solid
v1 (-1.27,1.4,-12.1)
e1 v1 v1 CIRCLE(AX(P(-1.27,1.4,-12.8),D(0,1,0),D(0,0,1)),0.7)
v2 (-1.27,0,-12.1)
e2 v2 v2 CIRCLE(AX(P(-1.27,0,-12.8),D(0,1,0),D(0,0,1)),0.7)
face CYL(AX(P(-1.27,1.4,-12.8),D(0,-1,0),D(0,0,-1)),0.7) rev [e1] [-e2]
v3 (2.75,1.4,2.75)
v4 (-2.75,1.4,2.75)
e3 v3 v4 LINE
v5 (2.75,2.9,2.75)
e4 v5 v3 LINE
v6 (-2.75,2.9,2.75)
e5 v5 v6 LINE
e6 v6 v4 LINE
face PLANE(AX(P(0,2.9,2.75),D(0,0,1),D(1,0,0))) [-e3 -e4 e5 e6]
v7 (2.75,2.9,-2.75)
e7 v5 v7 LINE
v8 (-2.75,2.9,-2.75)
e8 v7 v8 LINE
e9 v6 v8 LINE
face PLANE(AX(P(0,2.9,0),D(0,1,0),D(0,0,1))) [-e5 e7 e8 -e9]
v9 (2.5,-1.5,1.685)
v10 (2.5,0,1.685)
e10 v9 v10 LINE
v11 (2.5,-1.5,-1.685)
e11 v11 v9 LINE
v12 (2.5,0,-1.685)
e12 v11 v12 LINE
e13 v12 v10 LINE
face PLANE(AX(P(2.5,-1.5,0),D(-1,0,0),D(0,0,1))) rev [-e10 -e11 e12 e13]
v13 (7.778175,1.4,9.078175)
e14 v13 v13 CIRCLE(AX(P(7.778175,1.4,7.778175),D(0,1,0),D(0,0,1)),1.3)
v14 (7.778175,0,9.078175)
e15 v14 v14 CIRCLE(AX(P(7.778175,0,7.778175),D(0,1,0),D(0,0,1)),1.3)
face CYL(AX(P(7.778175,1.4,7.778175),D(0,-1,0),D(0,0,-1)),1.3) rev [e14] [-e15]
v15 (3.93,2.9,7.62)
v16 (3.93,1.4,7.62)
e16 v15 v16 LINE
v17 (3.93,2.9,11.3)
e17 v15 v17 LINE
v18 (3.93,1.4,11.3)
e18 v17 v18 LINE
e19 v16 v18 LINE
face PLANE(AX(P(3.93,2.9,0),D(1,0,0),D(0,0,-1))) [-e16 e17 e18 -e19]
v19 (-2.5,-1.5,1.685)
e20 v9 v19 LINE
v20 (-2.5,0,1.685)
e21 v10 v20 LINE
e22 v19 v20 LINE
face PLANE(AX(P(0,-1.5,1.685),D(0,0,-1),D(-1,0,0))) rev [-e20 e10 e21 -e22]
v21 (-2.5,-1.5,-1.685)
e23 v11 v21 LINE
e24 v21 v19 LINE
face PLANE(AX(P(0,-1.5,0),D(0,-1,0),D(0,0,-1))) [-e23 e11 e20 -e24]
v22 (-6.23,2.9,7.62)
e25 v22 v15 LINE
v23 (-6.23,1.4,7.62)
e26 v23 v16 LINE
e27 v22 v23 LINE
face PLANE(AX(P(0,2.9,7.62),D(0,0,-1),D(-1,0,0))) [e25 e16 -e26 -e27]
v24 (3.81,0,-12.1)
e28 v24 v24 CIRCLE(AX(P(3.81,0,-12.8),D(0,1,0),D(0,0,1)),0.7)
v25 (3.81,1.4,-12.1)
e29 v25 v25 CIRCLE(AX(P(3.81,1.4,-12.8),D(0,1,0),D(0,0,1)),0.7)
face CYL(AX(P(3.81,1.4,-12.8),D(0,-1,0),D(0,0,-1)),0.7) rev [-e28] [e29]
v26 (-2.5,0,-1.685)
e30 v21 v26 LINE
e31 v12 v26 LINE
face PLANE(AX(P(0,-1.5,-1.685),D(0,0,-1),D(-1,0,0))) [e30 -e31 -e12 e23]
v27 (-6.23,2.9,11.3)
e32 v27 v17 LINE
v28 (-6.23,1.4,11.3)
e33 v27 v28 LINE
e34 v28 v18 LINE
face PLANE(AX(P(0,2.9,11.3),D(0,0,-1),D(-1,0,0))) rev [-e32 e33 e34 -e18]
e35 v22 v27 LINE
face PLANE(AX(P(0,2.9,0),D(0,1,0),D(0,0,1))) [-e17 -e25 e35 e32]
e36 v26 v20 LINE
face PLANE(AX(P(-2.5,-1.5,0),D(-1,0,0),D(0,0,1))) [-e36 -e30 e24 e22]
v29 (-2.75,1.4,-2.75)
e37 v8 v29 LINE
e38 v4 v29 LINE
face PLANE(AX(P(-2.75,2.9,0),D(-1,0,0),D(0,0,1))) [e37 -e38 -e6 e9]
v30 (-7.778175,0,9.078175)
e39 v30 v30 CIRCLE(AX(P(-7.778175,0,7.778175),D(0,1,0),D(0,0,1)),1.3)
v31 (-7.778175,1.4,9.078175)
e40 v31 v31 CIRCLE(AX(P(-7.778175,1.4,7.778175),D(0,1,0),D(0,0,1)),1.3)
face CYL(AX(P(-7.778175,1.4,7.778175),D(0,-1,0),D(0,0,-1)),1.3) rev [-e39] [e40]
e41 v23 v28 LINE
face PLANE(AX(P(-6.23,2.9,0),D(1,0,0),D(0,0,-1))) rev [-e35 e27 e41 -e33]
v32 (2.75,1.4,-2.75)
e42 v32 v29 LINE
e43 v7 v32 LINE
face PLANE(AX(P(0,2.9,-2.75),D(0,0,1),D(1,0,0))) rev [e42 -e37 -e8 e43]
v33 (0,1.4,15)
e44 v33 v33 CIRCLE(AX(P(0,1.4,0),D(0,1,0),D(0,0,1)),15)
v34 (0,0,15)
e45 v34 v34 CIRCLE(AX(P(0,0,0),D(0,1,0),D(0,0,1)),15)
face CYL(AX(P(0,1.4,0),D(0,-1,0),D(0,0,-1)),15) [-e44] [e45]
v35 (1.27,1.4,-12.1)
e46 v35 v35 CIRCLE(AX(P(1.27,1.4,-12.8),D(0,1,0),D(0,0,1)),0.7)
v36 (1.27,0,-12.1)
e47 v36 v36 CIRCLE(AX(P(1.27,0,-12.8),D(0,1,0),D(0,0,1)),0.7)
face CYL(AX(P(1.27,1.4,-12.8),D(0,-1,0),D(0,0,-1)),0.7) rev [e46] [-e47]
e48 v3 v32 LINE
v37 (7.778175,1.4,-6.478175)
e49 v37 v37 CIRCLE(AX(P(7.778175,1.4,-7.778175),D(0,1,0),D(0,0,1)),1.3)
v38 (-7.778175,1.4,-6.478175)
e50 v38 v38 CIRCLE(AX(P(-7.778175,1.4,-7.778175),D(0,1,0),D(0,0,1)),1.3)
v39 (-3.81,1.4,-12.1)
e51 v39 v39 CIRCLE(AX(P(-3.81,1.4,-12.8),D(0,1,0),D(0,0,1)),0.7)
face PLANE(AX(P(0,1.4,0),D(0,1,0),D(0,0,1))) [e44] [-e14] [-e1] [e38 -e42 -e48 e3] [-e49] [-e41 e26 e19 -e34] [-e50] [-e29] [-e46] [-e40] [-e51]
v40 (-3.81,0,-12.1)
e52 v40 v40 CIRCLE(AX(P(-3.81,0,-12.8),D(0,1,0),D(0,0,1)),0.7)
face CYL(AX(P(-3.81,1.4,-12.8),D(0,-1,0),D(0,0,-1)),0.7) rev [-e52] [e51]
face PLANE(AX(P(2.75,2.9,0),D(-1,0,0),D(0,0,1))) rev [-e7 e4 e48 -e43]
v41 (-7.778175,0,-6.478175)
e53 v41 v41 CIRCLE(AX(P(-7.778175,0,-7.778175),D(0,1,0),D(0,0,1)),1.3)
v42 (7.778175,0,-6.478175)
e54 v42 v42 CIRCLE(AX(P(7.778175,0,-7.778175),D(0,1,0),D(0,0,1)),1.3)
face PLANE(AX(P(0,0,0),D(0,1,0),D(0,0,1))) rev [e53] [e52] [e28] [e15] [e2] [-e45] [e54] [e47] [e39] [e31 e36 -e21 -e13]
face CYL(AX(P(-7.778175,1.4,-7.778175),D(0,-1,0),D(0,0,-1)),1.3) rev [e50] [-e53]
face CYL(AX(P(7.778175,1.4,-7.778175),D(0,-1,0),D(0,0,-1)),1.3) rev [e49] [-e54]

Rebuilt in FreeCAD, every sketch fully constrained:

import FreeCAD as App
import Part
import Sketcher

V = App.Vector
Q = App.Units.Quantity

doc = App.newDocument("Part")
params = doc.addObject("Spreadsheet::Sheet", "Params")
for row, (alias, value) in enumerate([
    ("sketch1_diameter", "30 mm"),
    ("sketch1_diameter2", "2.6 mm"),
    ("sketch1_diameter3", "1.4 mm"),
    ("pad1_length", "1.4 mm"),
    ("sketch2_width", "5.5 mm"),
    ("sketch2_width2", "10.16 mm"),
    ("sketch2_height", "3.68 mm"),
    ("pad2_length", "1.5 mm"),
    ("sketch3_width", "5 mm"),
    ("sketch3_height", "3.37 mm"),
    ("pad3_length", "1.5 mm"),
], start=1):
    params.set(f"A{row}", alias)
    params.set(f"B{row}", "=" + value)
    params.setAlias(f"B{row}", alias)

body = doc.addObject("PartDesign::Body", "Body")

sketch1 = doc.addObject("Sketcher::SketchObject", "Sketch")
body.addObject(sketch1)
sketch1.AttachmentSupport = (doc.XZ_Plane, [""])
sketch1.MapMode = "FlatFace"
sketch1.addGeometry([
    Part.Circle(V(0, 0, 0), V(0, 0, 1), 15),
    Part.Circle(V(-7.8, -7.8, 0), V(0, 0, 1), 1.3),
    Part.Circle(V(-3.8, -12.8, 0), V(0, 0, 1), 0.7),
    Part.Circle(V(-1.3, -12.8, 0), V(0, 0, 1), 0.7),
    Part.Circle(V(-7.8, 7.8, 0), V(0, 0, 1), 1.3),
    Part.Circle(V(1.3, -12.8, 0), V(0, 0, 1), 0.7),
    Part.Circle(V(3.8, -12.8, 0), V(0, 0, 1), 0.7),
    Part.Circle(V(7.8, -7.8, 0), V(0, 0, 1), 1.3),
    Part.Circle(V(7.8, 7.8, 0), V(0, 0, 1), 1.3),
], False)
sketch1.addConstraint([
    Sketcher.Constraint("Coincident", 0, 3, -1, 1),
    Sketcher.Constraint("Equal", 2, 3),
    Sketcher.Constraint("Equal", 1, 4),
    Sketcher.Constraint("Equal", 3, 5),
    Sketcher.Constraint("Equal", 5, 6),
    Sketcher.Constraint("Equal", 4, 7),
    Sketcher.Constraint("Equal", 7, 8),
    Sketcher.Constraint("Symmetric", 4, 3, 7, 3, -1, 1),
    Sketcher.Constraint("Symmetric", 1, 3, 8, 3, -1, 1),
    Sketcher.Constraint("Symmetric", 3, 3, 5, 3, -2),
    Sketcher.Constraint("Symmetric", 2, 3, 6, 3, -2),
    Sketcher.Constraint("Symmetric", 1, 3, 7, 3, -2),
    Sketcher.Constraint("Horizontal", 2, 3, 3, 3),
    Sketcher.Constraint("Diameter", 0, Q("30 mm")),
    Sketcher.Constraint("Diameter", 1, Q("2.6 mm")),
    Sketcher.Constraint("Diameter", 2, Q("1.4 mm")),
    Sketcher.Constraint("DistanceY", 2, 3, -1, 1, Q("12.8 mm")),
    Sketcher.Constraint("DistanceX", 2, 3, -1, 1, Q("3.81 mm")),
    Sketcher.Constraint("DistanceX", 3, 3, -1, 1, Q("1.27 mm")),
    Sketcher.Constraint("DistanceY", 1, 3, 4, 3, Q("15.556349 mm")),
    Sketcher.Constraint("DistanceX", 4, 3, 8, 3, Q("15.556349 mm")),
])
sketch1.setExpression("Constraints[13]", "Params.sketch1_diameter")
sketch1.setExpression("Constraints[14]", "Params.sketch1_diameter2")
sketch1.setExpression("Constraints[15]", "Params.sketch1_diameter3")
pad1 = doc.addObject("PartDesign::Pad", "Pad")
body.addObject(pad1)
pad1.Profile = sketch1
pad1.setExpression("Length", "Params.pad1_length")
pad1.Reversed = True

sketch2 = doc.addObject("Sketcher::SketchObject", "Sketch001")
body.addObject(sketch2)
sketch2.AttachmentSupport = (doc.XZ_Plane, [""])
sketch2.MapMode = "FlatFace"
sketch2.AttachmentOffset = App.Placement(V(0, 0, -1.4), App.Rotation())
sketch2.addGeometry([
    Part.LineSegment(V(-2.8, -2.8, 0), V(-2.8, 2.8, 0)),
    Part.LineSegment(V(-2.8, 2.8, 0), V(2.8, 2.8, 0)),
    Part.LineSegment(V(2.8, 2.8, 0), V(2.8, -2.8, 0)),
    Part.LineSegment(V(2.8, -2.8, 0), V(-2.8, -2.8, 0)),
    Part.LineSegment(V(-6.2, 7.6, 0), V(-6.2, 11.3, 0)),
    Part.LineSegment(V(-6.2, 11.3, 0), V(3.9, 11.3, 0)),
    Part.LineSegment(V(3.9, 11.3, 0), V(3.9, 7.6, 0)),
    Part.LineSegment(V(3.9, 7.6, 0), V(-6.2, 7.6, 0)),
], False)
sketch2.addConstraint([
    Sketcher.Constraint("Coincident", 0, 2, 1, 1),
    Sketcher.Constraint("Coincident", 1, 2, 2, 1),
    Sketcher.Constraint("Coincident", 2, 2, 3, 1),
    Sketcher.Constraint("Coincident", 3, 2, 0, 1),
    Sketcher.Constraint("Coincident", 4, 2, 5, 1),
    Sketcher.Constraint("Coincident", 5, 2, 6, 1),
    Sketcher.Constraint("Coincident", 6, 2, 7, 1),
    Sketcher.Constraint("Coincident", 7, 2, 4, 1),
    Sketcher.Constraint("Vertical", 0),
    Sketcher.Constraint("Horizontal", 1),
    Sketcher.Constraint("Vertical", 2),
    Sketcher.Constraint("Horizontal", 3),
    Sketcher.Constraint("Vertical", 4),
    Sketcher.Constraint("Horizontal", 5),
    Sketcher.Constraint("Vertical", 6),
    Sketcher.Constraint("Horizontal", 7),
    Sketcher.Constraint("Symmetric", 0, 2, 2, 2, -1, 1),
    Sketcher.Constraint("Equal", 3, 0),
    Sketcher.Constraint("DistanceX", 1, 1, 1, 2, Q("5.5 mm")),
    Sketcher.Constraint("DistanceX", 5, 1, 5, 2, Q("10.16 mm")),
    Sketcher.Constraint("DistanceY", 4, 1, 4, 2, Q("3.68 mm")),
    Sketcher.Constraint("DistanceY", -1, 1, 4, 2, Q("11.3 mm")),
    Sketcher.Constraint("DistanceX", 4, 2, -1, 1, Q("6.23 mm")),
])
sketch2.setExpression("Constraints[18]", "Params.sketch2_width")
sketch2.setExpression("Constraints[19]", "Params.sketch2_width2")
sketch2.setExpression("Constraints[20]", "Params.sketch2_height")
pad2 = doc.addObject("PartDesign::Pad", "Pad001")
body.addObject(pad2)
pad2.Profile = sketch2
pad2.setExpression("Length", "Params.pad2_length")
pad2.Reversed = True

sketch3 = doc.addObject("Sketcher::SketchObject", "Sketch002")
body.addObject(sketch3)
sketch3.AttachmentSupport = (doc.XZ_Plane, [""])
sketch3.MapMode = "FlatFace"
sketch3.addGeometry([
    Part.LineSegment(V(-2.5, 1.7, 0), V(-2.5, -1.7, 0)),
    Part.LineSegment(V(-2.5, -1.7, 0), V(2.5, -1.7, 0)),
    Part.LineSegment(V(2.5, -1.7, 0), V(2.5, 1.7, 0)),
    Part.LineSegment(V(2.5, 1.7, 0), V(-2.5, 1.7, 0)),
], False)
sketch3.addConstraint([
    Sketcher.Constraint("Coincident", 0, 2, 1, 1),
    Sketcher.Constraint("Coincident", 1, 2, 2, 1),
    Sketcher.Constraint("Coincident", 2, 2, 3, 1),
    Sketcher.Constraint("Coincident", 3, 2, 0, 1),
    Sketcher.Constraint("Vertical", 0),
    Sketcher.Constraint("Horizontal", 1),
    Sketcher.Constraint("Vertical", 2),
    Sketcher.Constraint("Horizontal", 3),
    Sketcher.Constraint("Symmetric", 0, 2, 2, 2, -1, 1),
    Sketcher.Constraint("DistanceX", 1, 1, 1, 2, Q("5 mm")),
    Sketcher.Constraint("DistanceY", 0, 2, 0, 1, Q("3.37 mm")),
])
sketch3.setExpression("Constraints[9]", "Params.sketch3_width")
sketch3.setExpression("Constraints[10]", "Params.sketch3_height")
pad3 = doc.addObject("PartDesign::Pad", "Pad002")
body.addObject(pad3)
pad3.Profile = sketch3
pad3.setExpression("Length", "Params.pad3_length")

doc.recompute()
